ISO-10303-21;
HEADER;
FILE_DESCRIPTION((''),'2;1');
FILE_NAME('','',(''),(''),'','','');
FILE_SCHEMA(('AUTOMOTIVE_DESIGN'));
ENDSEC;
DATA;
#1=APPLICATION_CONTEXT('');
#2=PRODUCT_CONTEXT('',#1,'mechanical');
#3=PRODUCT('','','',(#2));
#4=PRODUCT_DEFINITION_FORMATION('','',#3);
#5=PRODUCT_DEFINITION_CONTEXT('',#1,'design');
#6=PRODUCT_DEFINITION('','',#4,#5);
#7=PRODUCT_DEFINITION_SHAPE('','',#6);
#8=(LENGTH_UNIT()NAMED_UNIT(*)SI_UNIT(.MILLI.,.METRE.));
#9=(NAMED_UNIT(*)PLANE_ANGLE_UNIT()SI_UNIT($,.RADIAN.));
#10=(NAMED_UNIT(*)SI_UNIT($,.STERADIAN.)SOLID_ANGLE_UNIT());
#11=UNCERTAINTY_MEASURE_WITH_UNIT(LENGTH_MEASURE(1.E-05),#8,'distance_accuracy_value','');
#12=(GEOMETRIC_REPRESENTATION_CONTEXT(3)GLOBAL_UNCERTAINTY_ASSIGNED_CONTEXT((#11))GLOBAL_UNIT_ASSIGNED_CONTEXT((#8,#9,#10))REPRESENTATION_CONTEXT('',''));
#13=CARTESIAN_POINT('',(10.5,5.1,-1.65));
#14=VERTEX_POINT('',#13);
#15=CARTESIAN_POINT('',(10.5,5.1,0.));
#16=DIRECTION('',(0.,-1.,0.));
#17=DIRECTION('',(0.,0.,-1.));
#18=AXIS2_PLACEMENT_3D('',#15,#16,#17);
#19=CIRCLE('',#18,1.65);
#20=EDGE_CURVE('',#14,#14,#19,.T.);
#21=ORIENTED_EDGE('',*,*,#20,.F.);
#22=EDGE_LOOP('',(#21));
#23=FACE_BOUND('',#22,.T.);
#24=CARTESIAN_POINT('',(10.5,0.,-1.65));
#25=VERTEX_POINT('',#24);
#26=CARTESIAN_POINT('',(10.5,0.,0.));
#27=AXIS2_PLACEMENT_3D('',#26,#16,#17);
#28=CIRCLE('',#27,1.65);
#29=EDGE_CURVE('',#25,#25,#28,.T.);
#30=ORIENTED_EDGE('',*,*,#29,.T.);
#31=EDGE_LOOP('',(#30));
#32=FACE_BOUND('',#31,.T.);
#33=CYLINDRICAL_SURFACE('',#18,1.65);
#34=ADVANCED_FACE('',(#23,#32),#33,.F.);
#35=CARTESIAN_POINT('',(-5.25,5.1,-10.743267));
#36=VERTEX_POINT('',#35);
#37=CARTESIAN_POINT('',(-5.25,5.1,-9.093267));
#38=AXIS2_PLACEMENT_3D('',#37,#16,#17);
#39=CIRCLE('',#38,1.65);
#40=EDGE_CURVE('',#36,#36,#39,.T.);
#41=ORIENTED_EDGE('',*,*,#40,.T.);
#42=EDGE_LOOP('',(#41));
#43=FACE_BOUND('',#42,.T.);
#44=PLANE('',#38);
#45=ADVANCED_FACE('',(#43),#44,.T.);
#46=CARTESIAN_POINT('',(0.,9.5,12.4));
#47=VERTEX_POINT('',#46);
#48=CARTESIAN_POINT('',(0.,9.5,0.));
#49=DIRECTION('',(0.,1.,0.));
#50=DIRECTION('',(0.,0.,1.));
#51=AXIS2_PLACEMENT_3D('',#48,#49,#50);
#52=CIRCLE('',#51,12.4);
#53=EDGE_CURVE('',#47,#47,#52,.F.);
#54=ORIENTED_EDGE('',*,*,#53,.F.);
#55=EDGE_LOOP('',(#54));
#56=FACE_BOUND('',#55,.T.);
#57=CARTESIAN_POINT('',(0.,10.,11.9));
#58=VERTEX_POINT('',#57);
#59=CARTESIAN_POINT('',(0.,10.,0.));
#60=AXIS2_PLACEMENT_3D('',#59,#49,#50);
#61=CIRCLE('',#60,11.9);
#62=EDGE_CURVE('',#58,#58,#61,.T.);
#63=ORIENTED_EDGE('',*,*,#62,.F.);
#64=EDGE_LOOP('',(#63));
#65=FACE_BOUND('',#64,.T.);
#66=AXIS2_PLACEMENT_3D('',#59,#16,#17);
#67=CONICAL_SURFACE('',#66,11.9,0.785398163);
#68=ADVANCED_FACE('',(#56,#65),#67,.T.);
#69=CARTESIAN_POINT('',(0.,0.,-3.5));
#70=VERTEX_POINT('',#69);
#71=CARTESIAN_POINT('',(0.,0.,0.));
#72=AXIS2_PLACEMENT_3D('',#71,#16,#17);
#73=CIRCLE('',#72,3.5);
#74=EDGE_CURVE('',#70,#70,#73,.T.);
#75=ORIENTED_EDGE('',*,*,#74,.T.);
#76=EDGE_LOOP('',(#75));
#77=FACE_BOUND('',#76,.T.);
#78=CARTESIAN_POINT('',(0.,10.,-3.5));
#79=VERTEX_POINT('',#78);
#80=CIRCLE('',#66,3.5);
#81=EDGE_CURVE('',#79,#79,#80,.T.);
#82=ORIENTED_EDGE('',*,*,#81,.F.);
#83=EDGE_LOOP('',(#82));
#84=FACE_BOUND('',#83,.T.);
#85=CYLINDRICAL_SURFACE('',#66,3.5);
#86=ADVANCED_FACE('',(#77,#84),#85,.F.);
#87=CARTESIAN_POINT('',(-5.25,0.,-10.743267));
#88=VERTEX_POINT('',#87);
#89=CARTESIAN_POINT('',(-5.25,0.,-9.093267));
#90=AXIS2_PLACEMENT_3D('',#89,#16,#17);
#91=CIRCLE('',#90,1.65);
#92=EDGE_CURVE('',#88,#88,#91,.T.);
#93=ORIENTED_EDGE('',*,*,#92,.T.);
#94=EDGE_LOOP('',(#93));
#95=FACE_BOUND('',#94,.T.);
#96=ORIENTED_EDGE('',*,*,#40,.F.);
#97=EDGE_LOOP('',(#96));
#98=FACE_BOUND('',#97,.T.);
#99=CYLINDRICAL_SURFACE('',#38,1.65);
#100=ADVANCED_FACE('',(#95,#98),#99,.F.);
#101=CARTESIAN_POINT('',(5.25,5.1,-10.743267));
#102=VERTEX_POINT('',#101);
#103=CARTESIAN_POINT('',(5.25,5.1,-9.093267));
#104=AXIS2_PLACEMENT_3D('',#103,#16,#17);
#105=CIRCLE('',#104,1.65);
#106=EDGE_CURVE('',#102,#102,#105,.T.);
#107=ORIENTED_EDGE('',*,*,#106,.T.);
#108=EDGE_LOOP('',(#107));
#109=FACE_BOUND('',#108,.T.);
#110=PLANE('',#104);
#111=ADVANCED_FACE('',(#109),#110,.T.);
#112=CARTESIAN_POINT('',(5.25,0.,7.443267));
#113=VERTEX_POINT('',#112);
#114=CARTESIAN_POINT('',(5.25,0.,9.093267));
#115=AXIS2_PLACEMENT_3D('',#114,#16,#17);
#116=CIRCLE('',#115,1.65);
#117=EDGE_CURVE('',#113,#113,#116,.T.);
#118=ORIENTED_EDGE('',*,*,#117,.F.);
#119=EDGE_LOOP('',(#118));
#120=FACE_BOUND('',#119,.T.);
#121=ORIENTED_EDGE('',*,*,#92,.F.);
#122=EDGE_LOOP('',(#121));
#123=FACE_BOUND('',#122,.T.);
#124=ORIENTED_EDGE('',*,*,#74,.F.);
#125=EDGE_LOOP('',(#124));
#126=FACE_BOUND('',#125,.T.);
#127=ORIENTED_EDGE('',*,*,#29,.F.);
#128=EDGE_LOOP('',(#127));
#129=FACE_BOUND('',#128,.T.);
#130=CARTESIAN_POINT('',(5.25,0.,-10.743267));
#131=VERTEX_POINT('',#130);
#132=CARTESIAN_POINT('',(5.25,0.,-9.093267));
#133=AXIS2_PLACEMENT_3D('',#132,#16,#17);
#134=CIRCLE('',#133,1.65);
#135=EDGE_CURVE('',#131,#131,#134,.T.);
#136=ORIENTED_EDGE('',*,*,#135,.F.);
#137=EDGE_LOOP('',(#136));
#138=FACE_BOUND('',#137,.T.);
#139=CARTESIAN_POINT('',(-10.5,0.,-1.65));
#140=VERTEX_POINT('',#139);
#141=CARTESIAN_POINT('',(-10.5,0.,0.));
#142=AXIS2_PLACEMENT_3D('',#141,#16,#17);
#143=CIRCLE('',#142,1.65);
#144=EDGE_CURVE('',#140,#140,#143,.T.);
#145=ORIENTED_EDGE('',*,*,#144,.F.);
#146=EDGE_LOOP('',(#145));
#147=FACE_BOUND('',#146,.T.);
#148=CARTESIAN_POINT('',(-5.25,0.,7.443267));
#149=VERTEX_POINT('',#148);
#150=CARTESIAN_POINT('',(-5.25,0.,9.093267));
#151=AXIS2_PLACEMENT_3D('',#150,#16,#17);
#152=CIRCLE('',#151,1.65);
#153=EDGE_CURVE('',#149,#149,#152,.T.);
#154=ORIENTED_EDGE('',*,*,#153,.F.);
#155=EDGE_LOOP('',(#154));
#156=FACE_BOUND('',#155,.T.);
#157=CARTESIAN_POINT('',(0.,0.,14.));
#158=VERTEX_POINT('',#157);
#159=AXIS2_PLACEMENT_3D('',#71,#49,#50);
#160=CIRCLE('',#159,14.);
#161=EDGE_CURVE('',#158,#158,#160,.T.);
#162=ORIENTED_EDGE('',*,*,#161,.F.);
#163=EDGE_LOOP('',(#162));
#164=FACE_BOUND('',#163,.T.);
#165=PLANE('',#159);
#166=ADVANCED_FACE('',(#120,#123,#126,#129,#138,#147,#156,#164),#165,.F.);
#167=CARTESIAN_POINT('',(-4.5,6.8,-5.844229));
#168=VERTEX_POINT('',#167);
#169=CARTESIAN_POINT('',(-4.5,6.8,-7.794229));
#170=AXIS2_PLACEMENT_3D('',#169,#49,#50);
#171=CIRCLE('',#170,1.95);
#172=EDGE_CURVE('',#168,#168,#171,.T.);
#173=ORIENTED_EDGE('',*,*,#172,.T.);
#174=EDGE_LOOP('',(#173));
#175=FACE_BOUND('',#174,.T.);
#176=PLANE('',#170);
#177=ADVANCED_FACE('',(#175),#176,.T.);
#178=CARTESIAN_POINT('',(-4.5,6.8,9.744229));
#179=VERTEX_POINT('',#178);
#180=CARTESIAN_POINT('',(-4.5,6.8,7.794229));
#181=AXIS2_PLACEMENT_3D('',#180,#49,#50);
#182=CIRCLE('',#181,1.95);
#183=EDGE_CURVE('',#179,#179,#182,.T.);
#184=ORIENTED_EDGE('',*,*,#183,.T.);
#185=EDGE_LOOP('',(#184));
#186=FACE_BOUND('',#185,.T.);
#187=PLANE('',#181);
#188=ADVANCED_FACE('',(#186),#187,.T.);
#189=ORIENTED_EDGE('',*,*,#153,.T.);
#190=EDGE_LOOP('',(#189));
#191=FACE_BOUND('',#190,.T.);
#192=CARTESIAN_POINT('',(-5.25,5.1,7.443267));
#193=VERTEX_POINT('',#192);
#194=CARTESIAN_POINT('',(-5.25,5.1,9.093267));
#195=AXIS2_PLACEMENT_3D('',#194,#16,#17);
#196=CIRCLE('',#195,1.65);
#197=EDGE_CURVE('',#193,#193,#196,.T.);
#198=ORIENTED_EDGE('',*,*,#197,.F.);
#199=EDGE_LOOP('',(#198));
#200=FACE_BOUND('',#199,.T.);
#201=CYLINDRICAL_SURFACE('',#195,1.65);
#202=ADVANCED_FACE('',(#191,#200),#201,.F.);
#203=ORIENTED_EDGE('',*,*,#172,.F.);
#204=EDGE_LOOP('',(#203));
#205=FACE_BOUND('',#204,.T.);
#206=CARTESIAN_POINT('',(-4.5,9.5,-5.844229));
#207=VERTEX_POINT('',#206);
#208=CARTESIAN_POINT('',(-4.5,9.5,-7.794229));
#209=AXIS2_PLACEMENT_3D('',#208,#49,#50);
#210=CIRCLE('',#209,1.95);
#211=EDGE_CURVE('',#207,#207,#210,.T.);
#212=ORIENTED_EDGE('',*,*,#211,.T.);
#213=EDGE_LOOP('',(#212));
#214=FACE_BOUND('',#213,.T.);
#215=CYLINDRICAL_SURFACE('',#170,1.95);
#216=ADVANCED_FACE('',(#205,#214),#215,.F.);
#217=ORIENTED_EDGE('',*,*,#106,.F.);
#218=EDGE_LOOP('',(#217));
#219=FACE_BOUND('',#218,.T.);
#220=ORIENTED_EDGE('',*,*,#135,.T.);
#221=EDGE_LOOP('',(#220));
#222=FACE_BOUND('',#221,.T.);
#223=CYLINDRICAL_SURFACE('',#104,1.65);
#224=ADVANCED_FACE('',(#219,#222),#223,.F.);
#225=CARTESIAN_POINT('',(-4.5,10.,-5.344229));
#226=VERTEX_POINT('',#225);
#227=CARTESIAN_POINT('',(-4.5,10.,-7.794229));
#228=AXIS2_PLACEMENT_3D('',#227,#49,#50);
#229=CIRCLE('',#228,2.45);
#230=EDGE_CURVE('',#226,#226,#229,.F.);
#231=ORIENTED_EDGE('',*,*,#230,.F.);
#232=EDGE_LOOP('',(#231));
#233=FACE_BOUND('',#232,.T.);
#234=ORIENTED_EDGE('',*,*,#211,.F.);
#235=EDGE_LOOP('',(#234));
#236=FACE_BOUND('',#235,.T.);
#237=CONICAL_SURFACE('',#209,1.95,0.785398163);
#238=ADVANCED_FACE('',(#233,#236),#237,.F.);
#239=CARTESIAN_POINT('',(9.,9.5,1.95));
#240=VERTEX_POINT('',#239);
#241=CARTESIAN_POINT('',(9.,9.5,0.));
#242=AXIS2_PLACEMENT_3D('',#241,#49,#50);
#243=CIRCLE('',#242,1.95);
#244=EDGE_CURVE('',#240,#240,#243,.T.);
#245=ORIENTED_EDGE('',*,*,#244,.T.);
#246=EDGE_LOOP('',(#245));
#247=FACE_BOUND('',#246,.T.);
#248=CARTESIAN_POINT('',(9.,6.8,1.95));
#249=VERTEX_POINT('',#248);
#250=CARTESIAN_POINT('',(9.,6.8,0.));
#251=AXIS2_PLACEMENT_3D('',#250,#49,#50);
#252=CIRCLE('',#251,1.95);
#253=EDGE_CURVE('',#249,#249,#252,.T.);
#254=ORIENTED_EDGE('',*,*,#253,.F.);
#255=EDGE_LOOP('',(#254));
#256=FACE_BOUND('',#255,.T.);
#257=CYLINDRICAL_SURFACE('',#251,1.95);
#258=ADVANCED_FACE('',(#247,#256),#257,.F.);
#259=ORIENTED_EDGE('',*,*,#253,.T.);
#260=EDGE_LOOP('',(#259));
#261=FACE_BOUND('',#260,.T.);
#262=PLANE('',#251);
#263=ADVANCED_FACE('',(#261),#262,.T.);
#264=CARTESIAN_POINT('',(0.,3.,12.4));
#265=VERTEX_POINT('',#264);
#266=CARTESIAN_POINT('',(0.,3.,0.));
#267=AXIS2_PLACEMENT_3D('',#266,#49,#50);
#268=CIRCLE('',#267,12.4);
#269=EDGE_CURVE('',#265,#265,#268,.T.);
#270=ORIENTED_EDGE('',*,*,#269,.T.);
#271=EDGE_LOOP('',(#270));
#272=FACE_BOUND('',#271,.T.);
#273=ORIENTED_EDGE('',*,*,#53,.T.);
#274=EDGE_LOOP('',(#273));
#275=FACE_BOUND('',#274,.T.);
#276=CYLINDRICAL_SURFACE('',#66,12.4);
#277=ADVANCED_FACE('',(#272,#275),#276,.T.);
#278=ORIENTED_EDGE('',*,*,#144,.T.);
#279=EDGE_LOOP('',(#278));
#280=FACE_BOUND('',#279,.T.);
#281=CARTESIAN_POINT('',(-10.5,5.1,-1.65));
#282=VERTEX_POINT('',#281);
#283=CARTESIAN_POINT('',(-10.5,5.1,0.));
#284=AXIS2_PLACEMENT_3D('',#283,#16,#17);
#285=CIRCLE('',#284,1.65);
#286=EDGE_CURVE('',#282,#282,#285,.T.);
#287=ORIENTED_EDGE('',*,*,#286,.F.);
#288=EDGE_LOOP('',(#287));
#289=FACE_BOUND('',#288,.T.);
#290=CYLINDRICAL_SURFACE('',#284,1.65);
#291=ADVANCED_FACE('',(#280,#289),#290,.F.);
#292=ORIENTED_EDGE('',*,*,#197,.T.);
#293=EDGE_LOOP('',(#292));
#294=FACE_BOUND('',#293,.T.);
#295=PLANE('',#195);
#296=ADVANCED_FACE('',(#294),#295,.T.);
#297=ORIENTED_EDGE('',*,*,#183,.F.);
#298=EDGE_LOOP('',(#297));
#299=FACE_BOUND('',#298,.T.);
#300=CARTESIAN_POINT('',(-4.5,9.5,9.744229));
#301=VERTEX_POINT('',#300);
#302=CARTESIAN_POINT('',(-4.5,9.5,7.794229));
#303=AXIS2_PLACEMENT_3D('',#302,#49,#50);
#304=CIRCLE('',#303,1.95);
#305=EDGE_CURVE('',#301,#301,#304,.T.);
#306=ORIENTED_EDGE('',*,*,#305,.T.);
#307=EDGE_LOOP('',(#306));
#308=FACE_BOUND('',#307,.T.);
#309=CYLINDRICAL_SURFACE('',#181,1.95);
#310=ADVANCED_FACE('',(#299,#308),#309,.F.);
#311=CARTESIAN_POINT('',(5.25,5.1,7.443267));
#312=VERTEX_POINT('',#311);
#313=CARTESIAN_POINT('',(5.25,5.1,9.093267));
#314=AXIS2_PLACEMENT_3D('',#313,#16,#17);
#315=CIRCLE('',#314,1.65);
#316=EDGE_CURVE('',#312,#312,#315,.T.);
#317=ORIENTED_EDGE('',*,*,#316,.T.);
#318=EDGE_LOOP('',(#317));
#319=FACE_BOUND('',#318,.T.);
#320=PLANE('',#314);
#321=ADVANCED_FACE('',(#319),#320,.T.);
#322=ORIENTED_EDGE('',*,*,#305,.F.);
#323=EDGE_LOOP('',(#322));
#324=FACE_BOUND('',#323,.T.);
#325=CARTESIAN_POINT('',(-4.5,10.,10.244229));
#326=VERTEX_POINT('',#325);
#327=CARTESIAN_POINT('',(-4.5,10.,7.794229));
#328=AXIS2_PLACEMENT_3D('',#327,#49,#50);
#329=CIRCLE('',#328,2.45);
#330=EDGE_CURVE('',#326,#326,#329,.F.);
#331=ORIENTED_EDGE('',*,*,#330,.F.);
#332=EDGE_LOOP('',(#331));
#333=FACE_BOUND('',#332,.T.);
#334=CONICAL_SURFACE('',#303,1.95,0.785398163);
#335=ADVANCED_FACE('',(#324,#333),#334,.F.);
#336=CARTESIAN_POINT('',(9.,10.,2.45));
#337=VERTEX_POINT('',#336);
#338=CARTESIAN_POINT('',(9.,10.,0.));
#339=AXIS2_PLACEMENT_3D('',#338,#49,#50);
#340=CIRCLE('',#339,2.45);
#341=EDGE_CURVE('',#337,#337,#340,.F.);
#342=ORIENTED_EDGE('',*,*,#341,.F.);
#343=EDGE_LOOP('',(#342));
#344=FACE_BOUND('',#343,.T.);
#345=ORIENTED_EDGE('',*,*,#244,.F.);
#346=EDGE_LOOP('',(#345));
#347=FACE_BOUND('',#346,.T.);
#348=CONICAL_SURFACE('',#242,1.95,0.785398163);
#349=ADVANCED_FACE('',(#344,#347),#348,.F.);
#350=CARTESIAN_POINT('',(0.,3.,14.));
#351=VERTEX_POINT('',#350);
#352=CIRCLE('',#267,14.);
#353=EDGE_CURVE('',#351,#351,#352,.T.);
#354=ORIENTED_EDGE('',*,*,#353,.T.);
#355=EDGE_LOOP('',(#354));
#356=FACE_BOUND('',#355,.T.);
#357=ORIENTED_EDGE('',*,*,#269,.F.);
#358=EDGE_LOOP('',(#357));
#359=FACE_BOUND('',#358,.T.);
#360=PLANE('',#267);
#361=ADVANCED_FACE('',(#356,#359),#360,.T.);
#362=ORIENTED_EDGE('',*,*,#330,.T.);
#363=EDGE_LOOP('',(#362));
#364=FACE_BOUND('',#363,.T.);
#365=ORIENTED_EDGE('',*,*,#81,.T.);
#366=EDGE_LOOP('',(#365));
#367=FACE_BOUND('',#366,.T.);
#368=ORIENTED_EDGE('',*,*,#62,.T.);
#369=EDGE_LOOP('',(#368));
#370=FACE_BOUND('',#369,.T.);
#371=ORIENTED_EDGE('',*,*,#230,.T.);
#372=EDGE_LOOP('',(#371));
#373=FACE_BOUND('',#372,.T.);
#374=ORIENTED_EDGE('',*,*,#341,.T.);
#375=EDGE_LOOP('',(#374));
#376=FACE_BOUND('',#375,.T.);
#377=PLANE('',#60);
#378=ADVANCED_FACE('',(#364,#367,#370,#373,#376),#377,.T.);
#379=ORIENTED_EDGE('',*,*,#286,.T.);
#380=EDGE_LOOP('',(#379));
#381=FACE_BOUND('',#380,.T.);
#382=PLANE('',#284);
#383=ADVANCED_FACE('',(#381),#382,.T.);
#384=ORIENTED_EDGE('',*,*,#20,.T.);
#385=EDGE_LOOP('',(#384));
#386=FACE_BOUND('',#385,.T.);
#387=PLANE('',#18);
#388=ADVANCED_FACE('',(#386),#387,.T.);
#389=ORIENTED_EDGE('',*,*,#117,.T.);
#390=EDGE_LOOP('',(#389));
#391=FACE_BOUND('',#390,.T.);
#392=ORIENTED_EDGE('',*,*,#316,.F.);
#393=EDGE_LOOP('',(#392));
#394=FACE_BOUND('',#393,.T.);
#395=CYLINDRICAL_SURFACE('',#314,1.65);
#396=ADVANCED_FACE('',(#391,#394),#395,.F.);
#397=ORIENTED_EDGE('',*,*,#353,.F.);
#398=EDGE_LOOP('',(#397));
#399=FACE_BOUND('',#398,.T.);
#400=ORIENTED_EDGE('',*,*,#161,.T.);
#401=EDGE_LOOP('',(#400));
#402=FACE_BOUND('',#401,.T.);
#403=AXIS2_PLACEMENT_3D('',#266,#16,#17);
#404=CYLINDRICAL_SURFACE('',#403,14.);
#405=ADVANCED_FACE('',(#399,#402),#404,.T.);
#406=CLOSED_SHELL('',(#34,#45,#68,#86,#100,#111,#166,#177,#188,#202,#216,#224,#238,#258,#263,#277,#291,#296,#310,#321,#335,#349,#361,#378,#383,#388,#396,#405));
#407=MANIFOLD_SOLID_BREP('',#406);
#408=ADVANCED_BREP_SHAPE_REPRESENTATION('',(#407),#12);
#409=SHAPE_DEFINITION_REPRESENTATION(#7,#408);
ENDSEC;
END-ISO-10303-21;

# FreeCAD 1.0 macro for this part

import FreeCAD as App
import Part
import Sketcher

V = App.Vector
Q = App.Units.Quantity


def edges_at(feature, points):
    """Names of the edges that pass closest to the given points."""
    edges = feature.Shape.Edges
    near = lambda p: min(range(len(edges)), key=lambda i: edges[i].distToShape(Part.Vertex(*p))[0])
    return sorted({f"Edge{near(p) + 1}" for p in points})

doc = App.newDocument("Part")
params = doc.addObject("Spreadsheet::Sheet", "Params")
for row, (alias, value) in enumerate([
    ("sketch1_diameter", "28 mm"),
    ("pad1_length", "3 mm"),
    ("sketch2_diameter", "24.8 mm"),
    ("pad2_length", "7 mm"),
    ("sketch3_diameter", "3.3 mm"),
    ("pocket1_length", "5.1 mm"),
    ("sketch4_diameter", "7 mm"),
    ("sketch5_diameter", "3.9 mm"),
    ("pocket3_length", "3.2 mm"),
    ("chamfer_size", "0.5 mm"),
], start=1):
    params.set(f"A{row}", alias)
    params.set(f"B{row}", "=" + value)
    params.setAlias(f"B{row}", alias)

body = doc.addObject("PartDesign::Body", "Body")

# Sketch on XZ plane
sketch1 = doc.addObject("Sketcher::SketchObject", "Sketch")
body.addObject(sketch1)
sketch1.AttachmentSupport = (doc.XZ_Plane, [""])
sketch1.MapMode = "FlatFace"
sketch1.addGeometry(Part.Circle(V(0, 0, 0), V(0, 0, 1), 14), False)
sketch1.addConstraint([
    Sketcher.Constraint("Coincident", 0, 3, -1, 1),
    Sketcher.Constraint("Diameter", 0, Q("28 mm")),
])
sketch1.setExpression("Constraints[1]", "Params.sketch1_diameter")
pad1 = doc.addObject("PartDesign::Pad", "Pad")
body.addObject(pad1)
pad1.Profile = sketch1
pad1.setExpression("Length", "Params.pad1_length")
pad1.Reversed = True

# Sketch on XZ plane
sketch2 = doc.addObject("Sketcher::SketchObject", "Sketch001")
body.addObject(sketch2)
sketch2.AttachmentSupport = (doc.XZ_Plane, [""])
sketch2.MapMode = "FlatFace"
sketch2.AttachmentOffset = App.Placement(V(0, 0, -3), App.Rotation())
sketch2.addGeometry(Part.Circle(V(0, 0, 0), V(0, 0, 1), 12), False)
sketch2.addConstraint([
    Sketcher.Constraint("Coincident", 0, 3, -1, 1),
    Sketcher.Constraint("Diameter", 0, Q("24.8 mm")),
])
sketch2.setExpression("Constraints[1]", "Params.sketch2_diameter")
pad2 = doc.addObject("PartDesign::Pad", "Pad001")
body.addObject(pad2)
pad2.Profile = sketch2
pad2.setExpression("Length", "Params.pad2_length")
pad2.Reversed = True

# Sketch on XZ plane
sketch3 = doc.addObject("Sketcher::SketchObject", "Sketch002")
body.addObject(sketch3)
sketch3.AttachmentSupport = (doc.XZ_Plane, [""])
sketch3.MapMode = "FlatFace"
sketch3.addGeometry([
    Part.Circle(V(10.5, 0, 0), V(0, 0, 1), 1.6),  # 0
    Part.Circle(V(5.2, -9.1, 0), V(0, 0, 1), 1.6),  # 1
    Part.Circle(V(-5.2, -9.1, 0), V(0, 0, 1), 1.6),  # 2
    Part.Circle(V(-10.5, 0, 0), V(0, 0, 1), 1.6),  # 3
    Part.Circle(V(-5.2, 9.1, 0), V(0, 0, 1), 1.6),  # 4
    Part.Circle(V(5.2, 9.1, 0), V(0, 0, 1), 1.6),  # 5
], False)
sketch3.addConstraint([
    Sketcher.Constraint("Equal", 0, 1),
    Sketcher.Constraint("Equal", 1, 2),
    Sketcher.Constraint("Equal", 2, 3),
    Sketcher.Constraint("Equal", 3, 4),
    Sketcher.Constraint("Equal", 4, 5),
    Sketcher.Constraint("Symmetric", 0, 3, 3, 3, -1, 1),
    Sketcher.Constraint("Symmetric", 1, 3, 4, 3, -1, 1),
    Sketcher.Constraint("Symmetric", 2, 3, 5, 3, -1, 1),
    Sketcher.Constraint("Symmetric", 1, 3, 2, 3, -2),
    Sketcher.Constraint("PointOnObject", 0, 3, -1),
    Sketcher.Constraint("Diameter", 0, Q("3.3 mm")),
    Sketcher.Constraint("DistanceX", 3, 3, 0, 3, Q("21 mm")),
    Sketcher.Constraint("DistanceX", 2, 3, 1, 3, Q("10.5 mm")),
    Sketcher.Constraint("DistanceY", 1, 3, -1, 1, Q("9.093267 mm")),
])
sketch3.setExpression("Constraints[10]", "Params.sketch3_diameter")
pocket1 = doc.addObject("PartDesign::Pocket", "Pocket")
body.addObject(pocket1)
pocket1.Profile = sketch3
pocket1.setExpression("Length", "Params.pocket1_length")

# Sketch on XZ plane
sketch4 = doc.addObject("Sketcher::SketchObject", "Sketch003")
body.addObject(sketch4)
sketch4.AttachmentSupport = (doc.XZ_Plane, [""])
sketch4.MapMode = "FlatFace"
sketch4.addGeometry(Part.Circle(V(0, 0, 0), V(0, 0, 1), 3.5), False)
sketch4.addConstraint([
    Sketcher.Constraint("Coincident", 0, 3, -1, 1),
    Sketcher.Constraint("Diameter", 0, Q("7 mm")),
])
sketch4.setExpression("Constraints[1]", "Params.sketch4_diameter")
pocket2 = doc.addObject("PartDesign::Pocket", "Pocket001")
body.addObject(pocket2)
pocket2.Profile = sketch4
pocket2.Type = "ThroughAll"

# Sketch on XZ plane
sketch5 = doc.addObject("Sketcher::SketchObject", "Sketch004")
body.addObject(sketch5)
sketch5.AttachmentSupport = (doc.XZ_Plane, [""])
sketch5.MapMode = "FlatFace"
sketch5.AttachmentOffset = App.Placement(V(0, 0, -10), App.Rotation())
sketch5.addGeometry([
    Part.Circle(V(9, 0, 0), V(0, 0, 1), 1.9),
    Part.Circle(V(-4.5, 7.8, 0), V(0, 0, 1), 1.9),
    Part.Circle(V(-4.5, -7.8, 0), V(0, 0, 1), 1.9),
], False)
sketch5.addConstraint([
    Sketcher.Constraint("Equal", 0, 1),
    Sketcher.Constraint("Equal", 1, 2),
    Sketcher.Constraint("Symmetric", 1, 3, 2, 3, -1),
    Sketcher.Constraint("PointOnObject", 0, 3, -1),
    Sketcher.Constraint("Diameter", 0, Q("3.9 mm")),
    Sketcher.Constraint("DistanceX", -1, 1, 0, 3, Q("9 mm")),
    Sketcher.Constraint("DistanceX", 1, 3, -1, 1, Q("4.5 mm")),
    Sketcher.Constraint("DistanceY", -1, 1, 1, 3, Q("7.794229 mm")),
])
sketch5.setExpression("Constraints[4]", "Params.sketch5_diameter")
pocket3 = doc.addObject("PartDesign::Pocket", "Pocket002")
body.addObject(pocket3)
pocket3.Profile = sketch5
pocket3.setExpression("Length", "Params.pocket3_length")
pocket3.Reversed = True
doc.recompute()

chamfer = doc.addObject("PartDesign::Chamfer", "Chamfer")
body.addObject(chamfer)
chamfer.Base = (pocket3, edges_at(pocket3, [
    (7.05, 10, 0),
    (-6.45, 10, 7.794),
    (-6.45, 10, -7.794),
    (-12.4, 10, 0),
]))
chamfer.setExpression("Size", "Params.chamfer_size")

doc.recompute()
